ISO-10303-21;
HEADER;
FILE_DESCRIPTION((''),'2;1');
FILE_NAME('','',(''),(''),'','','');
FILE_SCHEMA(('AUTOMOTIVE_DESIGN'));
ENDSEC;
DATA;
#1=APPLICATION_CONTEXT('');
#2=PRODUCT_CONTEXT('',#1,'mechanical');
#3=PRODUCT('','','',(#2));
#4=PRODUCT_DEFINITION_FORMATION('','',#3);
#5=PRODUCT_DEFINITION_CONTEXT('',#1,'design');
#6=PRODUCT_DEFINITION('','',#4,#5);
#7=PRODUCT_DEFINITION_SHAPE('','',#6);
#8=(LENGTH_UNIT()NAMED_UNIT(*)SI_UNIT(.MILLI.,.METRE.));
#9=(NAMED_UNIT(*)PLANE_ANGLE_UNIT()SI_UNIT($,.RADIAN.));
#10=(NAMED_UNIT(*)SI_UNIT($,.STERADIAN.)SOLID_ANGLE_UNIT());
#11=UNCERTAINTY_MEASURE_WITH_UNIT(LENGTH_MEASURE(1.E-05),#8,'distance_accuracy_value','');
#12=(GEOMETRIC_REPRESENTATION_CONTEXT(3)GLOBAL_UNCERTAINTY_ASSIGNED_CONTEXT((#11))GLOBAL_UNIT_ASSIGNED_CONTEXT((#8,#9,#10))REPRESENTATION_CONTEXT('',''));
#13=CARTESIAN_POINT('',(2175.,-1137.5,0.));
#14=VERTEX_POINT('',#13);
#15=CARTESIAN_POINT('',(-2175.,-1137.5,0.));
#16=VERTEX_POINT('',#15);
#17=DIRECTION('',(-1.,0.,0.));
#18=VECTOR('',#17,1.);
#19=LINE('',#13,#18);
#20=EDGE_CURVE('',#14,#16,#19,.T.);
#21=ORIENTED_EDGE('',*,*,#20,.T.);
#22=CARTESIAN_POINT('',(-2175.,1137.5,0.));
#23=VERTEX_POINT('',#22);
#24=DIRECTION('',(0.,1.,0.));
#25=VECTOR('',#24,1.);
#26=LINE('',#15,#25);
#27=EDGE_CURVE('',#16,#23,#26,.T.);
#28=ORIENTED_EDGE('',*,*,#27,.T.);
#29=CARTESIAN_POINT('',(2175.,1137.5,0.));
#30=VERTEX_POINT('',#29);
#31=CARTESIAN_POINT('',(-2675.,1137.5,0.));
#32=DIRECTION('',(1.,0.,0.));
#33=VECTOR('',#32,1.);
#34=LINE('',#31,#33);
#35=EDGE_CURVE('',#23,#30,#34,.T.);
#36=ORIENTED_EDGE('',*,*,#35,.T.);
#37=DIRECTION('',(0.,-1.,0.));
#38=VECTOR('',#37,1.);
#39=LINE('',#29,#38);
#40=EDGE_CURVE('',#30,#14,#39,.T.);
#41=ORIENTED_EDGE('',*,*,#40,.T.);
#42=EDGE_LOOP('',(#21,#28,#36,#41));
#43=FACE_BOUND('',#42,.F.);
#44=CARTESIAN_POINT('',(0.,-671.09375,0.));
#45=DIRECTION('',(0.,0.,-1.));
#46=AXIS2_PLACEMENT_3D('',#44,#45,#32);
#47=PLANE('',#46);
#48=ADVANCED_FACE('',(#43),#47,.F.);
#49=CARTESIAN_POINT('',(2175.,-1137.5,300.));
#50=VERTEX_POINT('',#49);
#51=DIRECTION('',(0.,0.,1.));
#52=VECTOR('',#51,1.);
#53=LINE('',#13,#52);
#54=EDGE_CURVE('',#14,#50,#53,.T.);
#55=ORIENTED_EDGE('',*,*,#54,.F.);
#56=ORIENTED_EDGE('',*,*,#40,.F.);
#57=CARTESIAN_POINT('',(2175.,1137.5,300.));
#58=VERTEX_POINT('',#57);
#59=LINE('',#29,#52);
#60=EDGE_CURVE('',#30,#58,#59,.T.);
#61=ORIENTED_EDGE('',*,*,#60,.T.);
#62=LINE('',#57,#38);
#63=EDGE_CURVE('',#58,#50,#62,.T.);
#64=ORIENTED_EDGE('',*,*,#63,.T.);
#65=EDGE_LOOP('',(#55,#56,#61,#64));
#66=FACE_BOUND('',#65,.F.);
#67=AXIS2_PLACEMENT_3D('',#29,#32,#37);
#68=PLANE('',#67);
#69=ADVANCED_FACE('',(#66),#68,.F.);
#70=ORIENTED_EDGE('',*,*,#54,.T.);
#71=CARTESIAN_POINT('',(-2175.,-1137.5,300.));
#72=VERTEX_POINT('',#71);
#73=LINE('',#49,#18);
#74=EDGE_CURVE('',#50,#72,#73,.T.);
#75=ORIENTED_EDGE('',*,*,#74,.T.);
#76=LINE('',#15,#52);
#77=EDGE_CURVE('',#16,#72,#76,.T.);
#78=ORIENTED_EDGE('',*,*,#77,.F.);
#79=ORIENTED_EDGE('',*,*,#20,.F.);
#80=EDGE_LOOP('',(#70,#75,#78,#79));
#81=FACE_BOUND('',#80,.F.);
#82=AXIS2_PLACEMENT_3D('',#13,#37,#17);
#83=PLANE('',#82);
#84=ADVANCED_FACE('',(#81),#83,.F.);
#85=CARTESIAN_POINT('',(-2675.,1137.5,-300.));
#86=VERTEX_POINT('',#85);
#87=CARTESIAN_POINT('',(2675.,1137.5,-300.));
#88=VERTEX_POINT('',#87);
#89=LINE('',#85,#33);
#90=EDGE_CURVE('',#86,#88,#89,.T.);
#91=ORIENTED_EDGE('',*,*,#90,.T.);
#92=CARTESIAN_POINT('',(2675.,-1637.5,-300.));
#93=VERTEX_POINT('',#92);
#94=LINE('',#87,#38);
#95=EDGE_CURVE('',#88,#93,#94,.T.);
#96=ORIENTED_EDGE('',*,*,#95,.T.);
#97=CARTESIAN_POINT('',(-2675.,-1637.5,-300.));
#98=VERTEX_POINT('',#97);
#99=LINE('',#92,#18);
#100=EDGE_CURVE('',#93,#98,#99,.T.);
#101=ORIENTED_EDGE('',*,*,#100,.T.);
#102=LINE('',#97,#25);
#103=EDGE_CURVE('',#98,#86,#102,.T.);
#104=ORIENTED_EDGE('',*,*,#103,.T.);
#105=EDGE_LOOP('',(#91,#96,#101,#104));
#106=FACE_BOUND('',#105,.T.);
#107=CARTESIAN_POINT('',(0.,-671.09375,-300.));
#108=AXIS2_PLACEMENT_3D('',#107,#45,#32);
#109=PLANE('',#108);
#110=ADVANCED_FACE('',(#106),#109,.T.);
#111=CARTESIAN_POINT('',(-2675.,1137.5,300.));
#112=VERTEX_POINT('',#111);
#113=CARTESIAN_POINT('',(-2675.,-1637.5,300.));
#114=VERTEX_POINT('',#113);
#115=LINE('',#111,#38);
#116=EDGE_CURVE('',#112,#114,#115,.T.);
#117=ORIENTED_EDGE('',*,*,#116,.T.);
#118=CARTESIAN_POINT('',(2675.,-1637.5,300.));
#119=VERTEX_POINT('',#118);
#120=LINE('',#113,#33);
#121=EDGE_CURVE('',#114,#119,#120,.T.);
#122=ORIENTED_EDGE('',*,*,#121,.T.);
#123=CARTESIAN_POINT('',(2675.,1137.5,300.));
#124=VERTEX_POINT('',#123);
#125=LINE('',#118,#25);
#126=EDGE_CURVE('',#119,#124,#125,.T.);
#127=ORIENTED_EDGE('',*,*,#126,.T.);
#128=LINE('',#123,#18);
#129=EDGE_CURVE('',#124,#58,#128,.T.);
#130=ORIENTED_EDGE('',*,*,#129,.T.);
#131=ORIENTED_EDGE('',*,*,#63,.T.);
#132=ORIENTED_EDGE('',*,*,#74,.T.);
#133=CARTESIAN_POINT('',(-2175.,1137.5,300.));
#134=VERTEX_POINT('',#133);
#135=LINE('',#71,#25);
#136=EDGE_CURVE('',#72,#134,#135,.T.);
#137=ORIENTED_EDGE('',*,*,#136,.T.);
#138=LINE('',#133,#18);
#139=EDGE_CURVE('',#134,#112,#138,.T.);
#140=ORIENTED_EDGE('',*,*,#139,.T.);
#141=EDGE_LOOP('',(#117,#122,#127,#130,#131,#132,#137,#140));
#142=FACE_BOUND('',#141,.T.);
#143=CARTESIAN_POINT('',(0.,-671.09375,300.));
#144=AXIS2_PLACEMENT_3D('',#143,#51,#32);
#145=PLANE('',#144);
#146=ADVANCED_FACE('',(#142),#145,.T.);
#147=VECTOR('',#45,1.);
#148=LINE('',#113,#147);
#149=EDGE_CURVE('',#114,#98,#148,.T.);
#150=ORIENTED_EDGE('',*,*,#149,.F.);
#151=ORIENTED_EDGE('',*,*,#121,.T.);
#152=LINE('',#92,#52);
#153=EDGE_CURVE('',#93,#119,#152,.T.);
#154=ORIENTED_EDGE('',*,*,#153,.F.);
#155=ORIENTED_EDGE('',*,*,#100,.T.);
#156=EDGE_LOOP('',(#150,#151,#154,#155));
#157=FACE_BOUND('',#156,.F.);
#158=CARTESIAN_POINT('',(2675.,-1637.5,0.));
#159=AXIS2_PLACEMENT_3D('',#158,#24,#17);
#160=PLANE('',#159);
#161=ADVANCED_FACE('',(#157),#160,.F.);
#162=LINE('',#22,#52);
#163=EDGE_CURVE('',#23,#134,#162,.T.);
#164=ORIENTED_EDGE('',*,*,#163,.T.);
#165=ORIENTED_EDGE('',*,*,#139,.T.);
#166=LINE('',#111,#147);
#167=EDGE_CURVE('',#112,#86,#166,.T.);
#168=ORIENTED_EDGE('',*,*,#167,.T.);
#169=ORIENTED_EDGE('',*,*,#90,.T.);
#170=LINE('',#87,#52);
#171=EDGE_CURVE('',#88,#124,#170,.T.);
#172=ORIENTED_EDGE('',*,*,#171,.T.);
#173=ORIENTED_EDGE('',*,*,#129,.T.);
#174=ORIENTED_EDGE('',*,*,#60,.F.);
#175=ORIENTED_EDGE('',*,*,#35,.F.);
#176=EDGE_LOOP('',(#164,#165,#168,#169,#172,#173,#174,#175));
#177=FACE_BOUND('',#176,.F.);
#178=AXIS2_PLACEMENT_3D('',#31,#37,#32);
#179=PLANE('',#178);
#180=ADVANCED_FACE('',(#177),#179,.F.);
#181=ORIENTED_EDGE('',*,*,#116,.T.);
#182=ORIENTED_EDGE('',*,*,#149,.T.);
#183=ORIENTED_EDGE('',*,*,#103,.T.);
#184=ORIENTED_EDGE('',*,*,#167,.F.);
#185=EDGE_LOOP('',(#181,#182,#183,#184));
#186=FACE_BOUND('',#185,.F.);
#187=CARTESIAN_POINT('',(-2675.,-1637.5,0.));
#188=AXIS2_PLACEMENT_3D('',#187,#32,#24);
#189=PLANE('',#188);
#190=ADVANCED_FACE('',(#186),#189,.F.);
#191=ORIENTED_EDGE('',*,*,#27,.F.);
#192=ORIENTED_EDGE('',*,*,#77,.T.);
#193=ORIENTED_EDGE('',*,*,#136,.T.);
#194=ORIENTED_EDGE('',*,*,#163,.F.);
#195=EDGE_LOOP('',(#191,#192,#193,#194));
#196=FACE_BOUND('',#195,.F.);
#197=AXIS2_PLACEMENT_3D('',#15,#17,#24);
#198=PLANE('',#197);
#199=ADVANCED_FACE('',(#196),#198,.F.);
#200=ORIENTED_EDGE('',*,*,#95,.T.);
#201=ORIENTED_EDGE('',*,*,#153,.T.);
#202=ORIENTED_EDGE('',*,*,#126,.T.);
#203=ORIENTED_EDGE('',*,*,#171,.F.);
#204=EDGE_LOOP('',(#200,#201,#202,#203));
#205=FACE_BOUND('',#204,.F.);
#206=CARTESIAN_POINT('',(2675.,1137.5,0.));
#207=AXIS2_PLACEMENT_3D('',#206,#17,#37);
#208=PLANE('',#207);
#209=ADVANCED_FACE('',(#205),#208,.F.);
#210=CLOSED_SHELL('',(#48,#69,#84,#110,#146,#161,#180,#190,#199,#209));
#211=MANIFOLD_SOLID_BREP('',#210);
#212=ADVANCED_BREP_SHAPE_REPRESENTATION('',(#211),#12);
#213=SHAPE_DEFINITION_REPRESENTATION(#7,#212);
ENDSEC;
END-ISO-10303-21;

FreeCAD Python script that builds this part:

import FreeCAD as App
import Part
import Sketcher
Q = App.Units.Quantity


def add_polygon(sketch, points):
    """Adds a closed chain of lines whose ends are joined by coincident constraints."""
    first, n = sketch.GeometryCount, len(points)
    for a, b in zip(points, points[1:] + points[:1]):
        sketch.addGeometry(Part.LineSegment(App.Vector(*a, 0), App.Vector(*b, 0)), False)
    for i in range(n):
        sketch.addConstraint(Sketcher.Constraint("Coincident", first + i, 2, first + (i + 1) % n, 1))

doc = App.newDocument("Part")
body = doc.addObject("PartDesign::Body", "Body")

sketch1 = body.newObject("Sketcher::SketchObject", "Sketch")
sketch1.AttachmentSupport = (doc.getObject("XY_Plane"), [""])
sketch1.MapMode = "FlatFace"
add_polygon(sketch1, [(2175, 1138), (2175, -1138), (-2175, -1138), (-2175, 1138), (-2675, 1138), (-2675, -1638), (2675, -1638), (2675, 1138)])
sketch1.addConstraint([
    Sketcher.Constraint("Vertical", 0),
    Sketcher.Constraint("Horizontal", 1),
    Sketcher.Constraint("Vertical", 2),
    Sketcher.Constraint("Horizontal", 3),
    Sketcher.Constraint("Vertical", 4),
    Sketcher.Constraint("Horizontal", 5),
    Sketcher.Constraint("Vertical", 6),
    Sketcher.Constraint("Horizontal", 7),
    Sketcher.Constraint("Symmetric", 0, 2, 2, 2, -1, 1),
    Sketcher.Constraint("Symmetric", 3, 2, 6, 2, -2),
    Sketcher.Constraint("DistanceX", 1, 2, 1, 1, Q("4350 mm")),
    Sketcher.Constraint("DistanceX", 3, 2, 3, 1, Q("500 mm")),
    Sketcher.Constraint("DistanceY", 0, 2, 0, 1, Q("2275 mm")),
    Sketcher.Constraint("DistanceY", 4, 2, 4, 1, Q("2775 mm")),
])
pad1 = body.newObject("PartDesign::Pad", "Pad")
pad1.Profile = sketch1
pad1.Length = 300

sketch2 = body.newObject("Sketcher::SketchObject", "Sketch001")
sketch2.AttachmentSupport = (doc.getObject("XY_Plane"), [""])
sketch2.MapMode = "FlatFace"
add_polygon(sketch2, [(2675, -1638), (-2675, -1638), (-2675, 1138), (2675, 1138)])
sketch2.addConstraint([
    Sketcher.Constraint("Horizontal", 0),
    Sketcher.Constraint("Vertical", 1),
    Sketcher.Constraint("Horizontal", 2),
    Sketcher.Constraint("Vertical", 3),
    Sketcher.Constraint("DistanceX", 0, 2, 0, 1, Q("5350 mm")),
    Sketcher.Constraint("DistanceY", 1, 1, 1, 2, Q("2775 mm")),
    Sketcher.Constraint("DistanceX", 0, 2, -1, 1, Q("2675 mm")),
    Sketcher.Constraint("DistanceY", 0, 2, -1, 1, Q("1637.5 mm")),
])
pad2 = body.newObject("PartDesign::Pad", "Pad001")
pad2.Profile = sketch2
pad2.Length = 300
pad2.Reversed = True

doc.recompute()
